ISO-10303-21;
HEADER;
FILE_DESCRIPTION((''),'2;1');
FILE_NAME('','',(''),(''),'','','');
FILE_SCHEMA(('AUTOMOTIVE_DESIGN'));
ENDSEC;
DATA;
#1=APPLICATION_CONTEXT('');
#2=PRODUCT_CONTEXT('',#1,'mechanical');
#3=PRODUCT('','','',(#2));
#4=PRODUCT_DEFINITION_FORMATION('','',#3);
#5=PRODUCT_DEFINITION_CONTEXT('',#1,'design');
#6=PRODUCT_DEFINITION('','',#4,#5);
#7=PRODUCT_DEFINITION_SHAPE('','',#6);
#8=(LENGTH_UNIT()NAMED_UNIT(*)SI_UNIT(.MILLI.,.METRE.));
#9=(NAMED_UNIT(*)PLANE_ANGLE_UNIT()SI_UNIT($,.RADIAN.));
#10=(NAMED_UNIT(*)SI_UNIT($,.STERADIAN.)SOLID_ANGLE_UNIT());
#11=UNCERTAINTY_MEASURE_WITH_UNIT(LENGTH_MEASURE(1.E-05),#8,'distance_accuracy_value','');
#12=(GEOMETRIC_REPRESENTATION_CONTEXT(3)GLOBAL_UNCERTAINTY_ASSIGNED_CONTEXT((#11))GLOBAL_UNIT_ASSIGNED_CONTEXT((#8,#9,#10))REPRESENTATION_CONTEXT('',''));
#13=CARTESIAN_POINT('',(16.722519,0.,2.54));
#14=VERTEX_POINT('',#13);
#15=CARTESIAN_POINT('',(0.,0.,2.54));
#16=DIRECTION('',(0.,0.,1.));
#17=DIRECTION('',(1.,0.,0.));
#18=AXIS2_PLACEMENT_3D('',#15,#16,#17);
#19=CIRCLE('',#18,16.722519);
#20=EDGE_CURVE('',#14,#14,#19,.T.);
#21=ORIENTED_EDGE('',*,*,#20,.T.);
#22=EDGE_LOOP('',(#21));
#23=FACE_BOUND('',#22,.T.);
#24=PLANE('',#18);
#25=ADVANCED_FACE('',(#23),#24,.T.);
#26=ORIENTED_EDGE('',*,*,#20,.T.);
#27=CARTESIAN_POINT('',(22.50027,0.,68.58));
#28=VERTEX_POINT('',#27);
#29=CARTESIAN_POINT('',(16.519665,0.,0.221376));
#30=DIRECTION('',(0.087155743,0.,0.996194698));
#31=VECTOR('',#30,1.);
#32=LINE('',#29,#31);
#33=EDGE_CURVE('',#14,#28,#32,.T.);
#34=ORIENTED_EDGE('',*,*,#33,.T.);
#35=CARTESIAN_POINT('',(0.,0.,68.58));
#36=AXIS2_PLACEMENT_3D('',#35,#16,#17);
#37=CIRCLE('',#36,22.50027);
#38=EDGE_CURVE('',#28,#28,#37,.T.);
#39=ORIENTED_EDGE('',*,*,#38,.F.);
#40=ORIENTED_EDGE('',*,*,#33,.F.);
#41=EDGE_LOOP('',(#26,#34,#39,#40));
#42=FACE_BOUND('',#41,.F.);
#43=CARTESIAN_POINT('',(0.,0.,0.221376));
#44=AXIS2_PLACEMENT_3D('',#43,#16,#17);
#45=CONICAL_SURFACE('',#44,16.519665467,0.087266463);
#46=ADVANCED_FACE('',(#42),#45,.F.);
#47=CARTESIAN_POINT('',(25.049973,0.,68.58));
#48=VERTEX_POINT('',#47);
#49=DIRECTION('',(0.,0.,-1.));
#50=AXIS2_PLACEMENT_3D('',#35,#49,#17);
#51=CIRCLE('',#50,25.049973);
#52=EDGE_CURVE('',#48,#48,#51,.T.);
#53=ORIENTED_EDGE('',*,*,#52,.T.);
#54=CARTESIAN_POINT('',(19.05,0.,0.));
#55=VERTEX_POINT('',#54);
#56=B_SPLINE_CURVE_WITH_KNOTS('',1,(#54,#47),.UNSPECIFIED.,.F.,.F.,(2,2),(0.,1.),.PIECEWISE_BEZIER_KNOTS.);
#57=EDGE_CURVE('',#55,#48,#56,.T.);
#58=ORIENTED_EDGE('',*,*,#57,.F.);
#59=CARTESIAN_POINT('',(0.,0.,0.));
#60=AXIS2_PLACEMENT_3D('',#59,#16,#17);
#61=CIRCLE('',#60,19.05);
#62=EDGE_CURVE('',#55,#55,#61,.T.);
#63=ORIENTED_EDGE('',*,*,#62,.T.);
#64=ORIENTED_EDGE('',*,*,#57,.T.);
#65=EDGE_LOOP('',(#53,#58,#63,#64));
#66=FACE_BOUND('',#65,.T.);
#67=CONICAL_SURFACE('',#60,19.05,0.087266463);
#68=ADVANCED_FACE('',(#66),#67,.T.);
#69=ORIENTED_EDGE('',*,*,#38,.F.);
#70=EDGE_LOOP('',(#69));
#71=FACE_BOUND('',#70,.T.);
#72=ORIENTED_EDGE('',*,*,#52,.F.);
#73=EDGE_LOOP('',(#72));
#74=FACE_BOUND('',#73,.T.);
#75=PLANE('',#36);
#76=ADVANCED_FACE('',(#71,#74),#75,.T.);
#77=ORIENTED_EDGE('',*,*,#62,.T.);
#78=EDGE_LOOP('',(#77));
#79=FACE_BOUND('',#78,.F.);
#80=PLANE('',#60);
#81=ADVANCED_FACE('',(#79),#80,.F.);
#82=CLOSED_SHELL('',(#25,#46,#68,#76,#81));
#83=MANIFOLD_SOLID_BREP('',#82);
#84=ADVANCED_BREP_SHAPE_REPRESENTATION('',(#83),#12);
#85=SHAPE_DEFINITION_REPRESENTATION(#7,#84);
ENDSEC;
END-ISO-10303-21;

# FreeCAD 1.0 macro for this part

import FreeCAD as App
import Part
import Sketcher
Q = App.Units.Quantity


def faces_at(feature, points):
    """Names of the faces that lie closest to the given points."""
    faces = feature.Shape.Faces
    near = lambda p: min(range(len(faces)), key=lambda i: faces[i].distToShape(Part.Vertex(*p))[0])
    return sorted({f"Face{near(p) + 1}" for p in points})

doc = App.newDocument("Part")
body = doc.addObject("PartDesign::Body", "Body")

sketch1 = body.newObject("Sketcher::SketchObject", "Sketch")
sketch1.AttachmentSupport = (doc.getObject("XY_Plane"), [""])
sketch1.MapMode = "FlatFace"
sketch1.addGeometry(Part.Circle(App.Vector(0, 0, 0), App.Vector(0, 0, 1), 19.05), False)
sketch1.addConstraint([
    Sketcher.Constraint("Coincident", 0, 3, -1, 1),
    Sketcher.Constraint("Diameter", 0, Q("1.5 in")),
])
pad1 = body.newObject("PartDesign::Pad", "Pad")
pad1.Profile = sketch1
pad1.Length = Q("2.7 in")
pad1.TaperAngle = 5
doc.recompute()

thickness = body.newObject("PartDesign::Thickness", "Thickness")
thickness.Base = (pad1, faces_at(pad1, [(0, 0, 68.58)]))
thickness.Value = Q("0.1 in")
thickness.Reversed = True
thickness.Join = "Intersection"

doc.recompute()
